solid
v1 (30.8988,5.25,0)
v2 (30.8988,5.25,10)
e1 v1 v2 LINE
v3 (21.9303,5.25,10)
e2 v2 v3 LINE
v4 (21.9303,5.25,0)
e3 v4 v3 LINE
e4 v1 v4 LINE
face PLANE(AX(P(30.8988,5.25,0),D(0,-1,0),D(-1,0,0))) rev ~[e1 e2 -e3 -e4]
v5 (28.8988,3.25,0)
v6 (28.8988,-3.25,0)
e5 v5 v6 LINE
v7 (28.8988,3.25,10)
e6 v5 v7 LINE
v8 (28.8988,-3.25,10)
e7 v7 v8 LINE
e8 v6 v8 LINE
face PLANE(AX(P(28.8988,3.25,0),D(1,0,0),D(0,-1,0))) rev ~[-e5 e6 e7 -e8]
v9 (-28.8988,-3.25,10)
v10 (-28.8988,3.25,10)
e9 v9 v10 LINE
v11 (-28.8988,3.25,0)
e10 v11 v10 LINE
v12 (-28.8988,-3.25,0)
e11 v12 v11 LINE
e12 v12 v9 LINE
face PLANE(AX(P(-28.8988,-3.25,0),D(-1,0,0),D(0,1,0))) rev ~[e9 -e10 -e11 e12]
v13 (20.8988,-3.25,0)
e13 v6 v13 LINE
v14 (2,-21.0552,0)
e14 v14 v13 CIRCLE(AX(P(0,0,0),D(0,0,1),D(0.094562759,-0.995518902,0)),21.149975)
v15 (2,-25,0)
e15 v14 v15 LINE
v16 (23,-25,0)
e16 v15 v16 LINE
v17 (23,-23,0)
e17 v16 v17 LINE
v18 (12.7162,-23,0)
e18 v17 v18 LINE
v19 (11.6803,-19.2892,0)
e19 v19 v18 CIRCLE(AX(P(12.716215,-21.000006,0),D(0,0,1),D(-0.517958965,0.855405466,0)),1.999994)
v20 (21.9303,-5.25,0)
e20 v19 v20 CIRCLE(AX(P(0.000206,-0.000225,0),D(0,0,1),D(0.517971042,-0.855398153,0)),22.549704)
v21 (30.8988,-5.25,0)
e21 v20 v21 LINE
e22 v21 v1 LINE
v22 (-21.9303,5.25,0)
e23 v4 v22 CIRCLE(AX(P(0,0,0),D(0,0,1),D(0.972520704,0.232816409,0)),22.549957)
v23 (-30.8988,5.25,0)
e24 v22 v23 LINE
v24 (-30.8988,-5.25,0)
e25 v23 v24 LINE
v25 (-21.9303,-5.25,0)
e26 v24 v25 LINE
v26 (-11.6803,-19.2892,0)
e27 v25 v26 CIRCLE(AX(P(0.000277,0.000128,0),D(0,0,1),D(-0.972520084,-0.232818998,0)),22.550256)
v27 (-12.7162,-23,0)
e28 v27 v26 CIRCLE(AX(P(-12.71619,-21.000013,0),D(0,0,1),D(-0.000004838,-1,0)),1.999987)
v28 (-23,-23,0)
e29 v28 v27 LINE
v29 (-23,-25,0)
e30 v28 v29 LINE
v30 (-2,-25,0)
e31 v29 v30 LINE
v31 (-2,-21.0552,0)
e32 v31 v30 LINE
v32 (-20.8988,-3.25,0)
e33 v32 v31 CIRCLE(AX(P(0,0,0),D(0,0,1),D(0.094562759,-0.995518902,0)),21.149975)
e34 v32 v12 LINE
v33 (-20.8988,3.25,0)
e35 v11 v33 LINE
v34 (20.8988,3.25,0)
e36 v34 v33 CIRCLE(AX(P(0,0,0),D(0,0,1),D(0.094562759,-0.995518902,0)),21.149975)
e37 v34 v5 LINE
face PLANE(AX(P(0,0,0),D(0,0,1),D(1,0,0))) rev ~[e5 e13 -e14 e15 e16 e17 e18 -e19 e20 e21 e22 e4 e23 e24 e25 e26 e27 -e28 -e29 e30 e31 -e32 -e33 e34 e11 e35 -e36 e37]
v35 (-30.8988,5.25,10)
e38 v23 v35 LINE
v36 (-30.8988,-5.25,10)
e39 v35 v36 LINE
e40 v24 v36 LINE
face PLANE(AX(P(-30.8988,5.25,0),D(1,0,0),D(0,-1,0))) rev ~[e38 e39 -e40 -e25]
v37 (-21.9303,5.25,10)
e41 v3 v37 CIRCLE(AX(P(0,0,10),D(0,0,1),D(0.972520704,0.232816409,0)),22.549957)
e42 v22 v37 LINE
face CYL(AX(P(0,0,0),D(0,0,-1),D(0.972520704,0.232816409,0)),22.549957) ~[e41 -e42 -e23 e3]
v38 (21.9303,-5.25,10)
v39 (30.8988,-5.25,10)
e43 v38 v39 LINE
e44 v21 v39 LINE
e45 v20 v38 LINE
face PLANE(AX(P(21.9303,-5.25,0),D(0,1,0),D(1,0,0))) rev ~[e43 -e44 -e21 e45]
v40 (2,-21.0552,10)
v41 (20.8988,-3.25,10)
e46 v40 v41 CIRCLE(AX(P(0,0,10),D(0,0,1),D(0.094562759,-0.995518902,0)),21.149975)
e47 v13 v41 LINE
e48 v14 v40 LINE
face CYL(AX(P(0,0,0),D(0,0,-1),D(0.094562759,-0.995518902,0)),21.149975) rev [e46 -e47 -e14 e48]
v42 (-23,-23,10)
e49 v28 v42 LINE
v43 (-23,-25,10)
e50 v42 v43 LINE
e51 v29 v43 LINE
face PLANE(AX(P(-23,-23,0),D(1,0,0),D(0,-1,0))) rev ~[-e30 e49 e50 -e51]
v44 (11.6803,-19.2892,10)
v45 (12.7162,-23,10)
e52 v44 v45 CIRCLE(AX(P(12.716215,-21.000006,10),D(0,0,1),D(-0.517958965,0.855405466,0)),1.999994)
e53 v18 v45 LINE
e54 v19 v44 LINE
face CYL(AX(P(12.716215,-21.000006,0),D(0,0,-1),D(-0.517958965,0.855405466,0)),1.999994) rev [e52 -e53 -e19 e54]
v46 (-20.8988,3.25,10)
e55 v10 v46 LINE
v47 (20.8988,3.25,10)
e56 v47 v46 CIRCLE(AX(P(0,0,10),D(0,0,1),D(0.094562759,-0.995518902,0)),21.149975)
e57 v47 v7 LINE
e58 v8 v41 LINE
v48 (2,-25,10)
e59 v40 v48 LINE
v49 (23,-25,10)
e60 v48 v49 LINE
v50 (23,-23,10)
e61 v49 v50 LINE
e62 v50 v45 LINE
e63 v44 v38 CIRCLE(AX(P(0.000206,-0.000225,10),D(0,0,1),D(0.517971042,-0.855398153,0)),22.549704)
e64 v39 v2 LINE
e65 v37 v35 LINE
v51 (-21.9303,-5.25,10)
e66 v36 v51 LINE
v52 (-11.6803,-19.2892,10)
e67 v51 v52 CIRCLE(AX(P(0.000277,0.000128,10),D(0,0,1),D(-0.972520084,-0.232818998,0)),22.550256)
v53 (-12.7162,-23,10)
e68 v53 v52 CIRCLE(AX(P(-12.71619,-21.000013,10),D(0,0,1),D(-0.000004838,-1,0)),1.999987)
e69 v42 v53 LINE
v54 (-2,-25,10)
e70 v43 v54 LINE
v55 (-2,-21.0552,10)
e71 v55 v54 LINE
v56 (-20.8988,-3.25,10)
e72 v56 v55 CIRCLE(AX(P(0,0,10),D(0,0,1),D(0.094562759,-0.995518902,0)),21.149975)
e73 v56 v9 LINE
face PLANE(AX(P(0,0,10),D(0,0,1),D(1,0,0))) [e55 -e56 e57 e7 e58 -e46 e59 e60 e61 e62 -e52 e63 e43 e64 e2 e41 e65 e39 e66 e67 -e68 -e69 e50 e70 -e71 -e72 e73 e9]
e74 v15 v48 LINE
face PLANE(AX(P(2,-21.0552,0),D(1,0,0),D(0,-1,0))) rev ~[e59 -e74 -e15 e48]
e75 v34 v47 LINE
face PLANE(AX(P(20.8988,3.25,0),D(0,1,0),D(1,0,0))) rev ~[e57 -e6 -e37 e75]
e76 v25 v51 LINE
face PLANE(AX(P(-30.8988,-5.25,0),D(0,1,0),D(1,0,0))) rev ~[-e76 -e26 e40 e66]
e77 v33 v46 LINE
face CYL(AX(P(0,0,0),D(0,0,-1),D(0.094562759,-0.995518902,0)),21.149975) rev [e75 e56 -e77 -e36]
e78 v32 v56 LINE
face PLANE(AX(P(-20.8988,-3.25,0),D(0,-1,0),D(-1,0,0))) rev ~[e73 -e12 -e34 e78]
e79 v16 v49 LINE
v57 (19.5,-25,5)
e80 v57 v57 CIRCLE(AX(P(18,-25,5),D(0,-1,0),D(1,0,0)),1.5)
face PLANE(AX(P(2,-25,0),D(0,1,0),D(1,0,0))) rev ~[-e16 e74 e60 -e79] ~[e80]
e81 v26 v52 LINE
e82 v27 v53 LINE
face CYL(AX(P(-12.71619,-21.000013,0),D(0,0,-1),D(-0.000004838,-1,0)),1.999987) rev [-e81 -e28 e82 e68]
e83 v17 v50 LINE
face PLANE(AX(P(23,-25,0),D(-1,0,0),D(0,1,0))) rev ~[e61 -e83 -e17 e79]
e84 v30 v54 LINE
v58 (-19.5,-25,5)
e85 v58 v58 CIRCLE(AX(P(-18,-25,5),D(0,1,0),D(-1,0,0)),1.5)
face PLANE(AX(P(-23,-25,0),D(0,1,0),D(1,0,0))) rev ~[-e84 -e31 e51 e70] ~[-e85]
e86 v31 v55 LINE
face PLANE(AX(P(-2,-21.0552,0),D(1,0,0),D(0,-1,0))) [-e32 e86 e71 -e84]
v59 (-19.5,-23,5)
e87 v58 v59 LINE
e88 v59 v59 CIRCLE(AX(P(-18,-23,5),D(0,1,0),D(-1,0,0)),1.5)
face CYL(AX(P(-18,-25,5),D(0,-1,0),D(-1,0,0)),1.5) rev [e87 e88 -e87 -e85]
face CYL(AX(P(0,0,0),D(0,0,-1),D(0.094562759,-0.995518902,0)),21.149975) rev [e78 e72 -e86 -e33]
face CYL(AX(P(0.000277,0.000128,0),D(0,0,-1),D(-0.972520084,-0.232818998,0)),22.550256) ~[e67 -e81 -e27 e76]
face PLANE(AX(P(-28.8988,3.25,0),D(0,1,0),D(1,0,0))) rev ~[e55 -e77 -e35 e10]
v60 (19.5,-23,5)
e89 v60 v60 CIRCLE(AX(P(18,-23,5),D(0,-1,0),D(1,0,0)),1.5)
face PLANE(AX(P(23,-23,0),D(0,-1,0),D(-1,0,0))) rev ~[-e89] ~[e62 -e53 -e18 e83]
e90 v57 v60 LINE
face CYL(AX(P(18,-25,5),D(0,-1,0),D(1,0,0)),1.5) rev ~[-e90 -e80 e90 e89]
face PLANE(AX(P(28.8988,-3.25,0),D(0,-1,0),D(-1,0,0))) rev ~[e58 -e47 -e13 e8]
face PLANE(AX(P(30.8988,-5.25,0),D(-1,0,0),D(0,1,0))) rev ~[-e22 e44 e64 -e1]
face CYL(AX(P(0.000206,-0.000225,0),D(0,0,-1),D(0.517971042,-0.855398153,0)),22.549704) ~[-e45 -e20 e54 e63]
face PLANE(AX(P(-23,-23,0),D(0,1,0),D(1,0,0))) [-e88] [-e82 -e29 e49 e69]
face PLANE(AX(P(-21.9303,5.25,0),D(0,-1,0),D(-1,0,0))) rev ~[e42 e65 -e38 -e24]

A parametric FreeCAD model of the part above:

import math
import FreeCAD as App
import Part
import Sketcher

doc = App.newDocument("Part")
params = doc.addObject("Spreadsheet::Sheet", "Params")
for row, (alias, value) in enumerate([
    ("sketch1_radius", "2 mm"),
    ("sketch1_width", "8 mm"),
    ("sketch1_height", "2 mm"),
    ("sketch1_radius2", "21.15 mm"),
    ("sketch1_radius3", "22.55 mm"),
    ("pad1_length", "10 mm"),
    ("sketch2_diameter", "3 mm"),
    ("pocket1_length", "2 mm"),
], start=1):
    params.set(f"A{row}", alias)
    params.set(f"B{row}", "=" + value)
    params.setAlias(f"B{row}", alias)

body = doc.addObject("PartDesign::Body", "Body")

# Sketch on XY plane
sketch1 = body.newObject("Sketcher::SketchObject", "Sketch")
sketch1.AttachmentSupport = (doc.getObject("XY_Plane"), [""])
sketch1.MapMode = "FlatFace"
sketch1.addGeometry(Part.LineSegment(App.Vector(-12.7, -23, 0), App.Vector(-23, -23, 0)), False)
sketch1.addGeometry(Part.LineSegment(App.Vector(-23, -23, 0), App.Vector(-23, -25, 0)), False)
sketch1.addGeometry(Part.LineSegment(App.Vector(-23, -25, 0), App.Vector(-2, -25, 0)), False)
sketch1.addGeometry(Part.LineSegment(App.Vector(-2, -25, 0), App.Vector(-2, -21.1, 0)), False)
sketch1.addGeometry(Part.ArcOfCircle(Part.Circle(App.Vector(0, 0, 0), App.Vector(0, 0, 1), 21.1), math.radians(-171), math.radians(-95)), False)
sketch1.addGeometry(Part.LineSegment(App.Vector(-20.9, -3.2, 0), App.Vector(-28.9, -3.2, 0)), False)
sketch1.addGeometry(Part.LineSegment(App.Vector(-28.9, -3.2, 0), App.Vector(-28.9, 3.2, 0)), False)
sketch1.addGeometry(Part.LineSegment(App.Vector(-28.9, 3.2, 0), App.Vector(-20.9, 3.2, 0)), False)
sketch1.addGeometry(Part.ArcOfCircle(Part.Circle(App.Vector(0, 0, 0), App.Vector(0, 0, 1), 21.1), math.radians(9), math.radians(171)), False)
sketch1.addGeometry(Part.LineSegment(App.Vector(20.9, 3.2, 0), App.Vector(28.9, 3.2, 0)), False)
sketch1.addGeometry(Part.LineSegment(App.Vector(28.9, 3.2, 0), App.Vector(28.9, -3.2, 0)), False)
sketch1.addGeometry(Part.LineSegment(App.Vector(28.9, -3.2, 0), App.Vector(20.9, -3.2, 0)), False)
sketch1.addGeometry(Part.ArcOfCircle(Part.Circle(App.Vector(0, 0, 0), App.Vector(0, 0, 1), 21.1), math.radians(-85), math.radians(-9)), False)
sketch1.addGeometry(Part.LineSegment(App.Vector(2, -21.1, 0), App.Vector(2, -25, 0)), False)
sketch1.addGeometry(Part.LineSegment(App.Vector(2, -25, 0), App.Vector(23, -25, 0)), False)
sketch1.addGeometry(Part.LineSegment(App.Vector(23, -25, 0), App.Vector(23, -23, 0)), False)
sketch1.addGeometry(Part.LineSegment(App.Vector(23, -23, 0), App.Vector(12.7, -23, 0)), False)
sketch1.addGeometry(Part.ArcOfCircle(Part.Circle(App.Vector(12.7, -21, 0), App.Vector(0, 0, 1), 2), math.radians(121), math.radians(270)), False)
sketch1.addGeometry(Part.ArcOfCircle(Part.Circle(App.Vector(0, 0, 0), App.Vector(0, 0, 1), 22.5), math.radians(-59), math.radians(-13)), False)
sketch1.addGeometry(Part.LineSegment(App.Vector(21.9, -5.2, 0), App.Vector(30.9, -5.2, 0)), False)
sketch1.addGeometry(Part.LineSegment(App.Vector(30.9, -5.2, 0), App.Vector(30.9, 5.2, 0)), False)
sketch1.addGeometry(Part.LineSegment(App.Vector(30.9, 5.2, 0), App.Vector(21.9, 5.2, 0)), False)
sketch1.addGeometry(Part.ArcOfCircle(Part.Circle(App.Vector(0, 0, 0), App.Vector(0, 0, 1), 22.5), math.radians(13), math.radians(167)), False)
sketch1.addGeometry(Part.LineSegment(App.Vector(-21.9, 5.2, 0), App.Vector(-30.9, 5.2, 0)), False)
sketch1.addGeometry(Part.LineSegment(App.Vector(-30.9, 5.2, 0), App.Vector(-30.9, -5.2, 0)), False)
sketch1.addGeometry(Part.LineSegment(App.Vector(-30.9, -5.2, 0), App.Vector(-21.9, -5.2, 0)), False)
sketch1.addGeometry(Part.ArcOfCircle(Part.Circle(App.Vector(0, 0, 0), App.Vector(0, 0, 1), 22.6), math.radians(-167), math.radians(-121)), False)
sketch1.addGeometry(Part.ArcOfCircle(Part.Circle(App.Vector(-12.7, -21, 0), App.Vector(0, 0, 1), 2), math.radians(-90), math.radians(59)), False)
sketch1.addConstraint(Sketcher.Constraint("Coincident", 0, 2, 1, 1))
sketch1.addConstraint(Sketcher.Constraint("Coincident", 1, 2, 2, 1))
sketch1.addConstraint(Sketcher.Constraint("Coincident", 2, 2, 3, 1))
sketch1.addConstraint(Sketcher.Constraint("Coincident", 3, 2, 4, 2))
sketch1.addConstraint(Sketcher.Constraint("Coincident", 4, 1, 5, 1))
sketch1.addConstraint(Sketcher.Constraint("Coincident", 5, 2, 6, 1))
sketch1.addConstraint(Sketcher.Constraint("Coincident", 6, 2, 7, 1))
sketch1.addConstraint(Sketcher.Constraint("Coincident", 7, 2, 8, 2))
sketch1.addConstraint(Sketcher.Constraint("Coincident", 8, 1, 9, 1))
sketch1.addConstraint(Sketcher.Constraint("Coincident", 9, 2, 10, 1))
sketch1.addConstraint(Sketcher.Constraint("Coincident", 10, 2, 11, 1))
sketch1.addConstraint(Sketcher.Constraint("Coincident", 11, 2, 12, 2))
sketch1.addConstraint(Sketcher.Constraint("Coincident", 12, 1, 13, 1))
sketch1.addConstraint(Sketcher.Constraint("Coincident", 13, 2, 14, 1))
sketch1.addConstraint(Sketcher.Constraint("Coincident", 14, 2, 15, 1))
sketch1.addConstraint(Sketcher.Constraint("Coincident", 15, 2, 16, 1))
sketch1.addConstraint(Sketcher.Constraint("Tangent", 16, 2, 17, 2))
sketch1.addConstraint(Sketcher.Constraint("Tangent", 17, 1, 18, 1))
sketch1.addConstraint(Sketcher.Constraint("Coincident", 18, 2, 19, 1))
sketch1.addConstraint(Sketcher.Constraint("Coincident", 19, 2, 20, 1))
sketch1.addConstraint(Sketcher.Constraint("Coincident", 20, 2, 21, 1))
sketch1.addConstraint(Sketcher.Constraint("Coincident", 21, 2, 22, 1))
sketch1.addConstraint(Sketcher.Constraint("Coincident", 22, 2, 23, 1))
sketch1.addConstraint(Sketcher.Constraint("Coincident", 23, 2, 24, 1))
sketch1.addConstraint(Sketcher.Constraint("Coincident", 24, 2, 25, 1))
sketch1.addConstraint(Sketcher.Constraint("Coincident", 25, 2, 26, 1))
sketch1.addConstraint(Sketcher.Constraint("Tangent", 26, 2, 27, 2))
sketch1.addConstraint(Sketcher.Constraint("Tangent", 27, 1, 0, 1))
sketch1.addConstraint(Sketcher.Constraint("Horizontal", 0))
sketch1.addConstraint(Sketcher.Constraint("Vertical", 1))
sketch1.addConstraint(Sketcher.Constraint("Horizontal", 2))
sketch1.addConstraint(Sketcher.Constraint("Vertical", 3))
sketch1.addConstraint(Sketcher.Constraint("Horizontal", 5))
sketch1.addConstraint(Sketcher.Constraint("Vertical", 6))
sketch1.addConstraint(Sketcher.Constraint("Horizontal", 7))
sketch1.addConstraint(Sketcher.Constraint("Horizontal", 9))
sketch1.addConstraint(Sketcher.Constraint("Vertical", 10))
sketch1.addConstraint(Sketcher.Constraint("Horizontal", 11))
sketch1.addConstraint(Sketcher.Constraint("Vertical", 13))
sketch1.addConstraint(Sketcher.Constraint("Horizontal", 14))
sketch1.addConstraint(Sketcher.Constraint("Vertical", 15))
sketch1.addConstraint(Sketcher.Constraint("Horizontal", 16))
sketch1.addConstraint(Sketcher.Constraint("Horizontal", 19))
sketch1.addConstraint(Sketcher.Constraint("Vertical", 20))
sketch1.addConstraint(Sketcher.Constraint("Horizontal", 21))
sketch1.addConstraint(Sketcher.Constraint("Horizontal", 23))
sketch1.addConstraint(Sketcher.Constraint("Vertical", 24))
sketch1.addConstraint(Sketcher.Constraint("Horizontal", 25))
sketch1.addConstraint(Sketcher.Constraint("Coincident", 4, 3, -1, 1))
sketch1.addConstraint(Sketcher.Constraint("Coincident", 8, 3, -1, 1))
sketch1.addConstraint(Sketcher.Constraint("Coincident", 12, 3, -1, 1))
sketch1.addConstraint(Sketcher.Constraint("Coincident", 18, 3, -1, 1))
sketch1.addConstraint(Sketcher.Constraint("Coincident", 22, 3, -1, 1))
sketch1.addConstraint(Sketcher.Constraint("Coincident", 26, 3, -1, 1))
sketch1.addConstraint(Sketcher.Constraint("Equal", 4, 8))
sketch1.addConstraint(Sketcher.Constraint("Equal", 8, 12))
sketch1.addConstraint(Sketcher.Constraint("Equal", 18, 22))
sketch1.addConstraint(Sketcher.Constraint("Equal", 22, 26))
sketch1.addConstraint(Sketcher.Constraint("Equal", 17, 27))
sketch1.addConstraint(Sketcher.Constraint("Symmetric", 5, 2, 9, 2, -1, 1))
sketch1.addConstraint(Sketcher.Constraint("Symmetric", 19, 2, 23, 2, -1, 1))
sketch1.addConstraint(Sketcher.Constraint("Symmetric", 2, 2, 13, 2, -2))
sketch1.addConstraint(Sketcher.Constraint("Symmetric", 0, 2, 15, 2, -2))
sketch1.addConstraint(Sketcher.Constraint("Horizontal", 7, 2, 8, 1))
sketch1.addConstraint(Sketcher.Constraint("Horizontal", 5, 2, 10, 2))
sketch1.addConstraint(Sketcher.Constraint("Horizontal", 21, 2, 22, 2))
sketch1.addConstraint(Sketcher.Constraint("Horizontal", 19, 2, 24, 2))
sketch1.addConstraint(Sketcher.Constraint("Radius", 17, 2.0))
sketch1.addConstraint(Sketcher.Constraint("DistanceX", 5, 2, 5, 1, 8.0))
sketch1.addConstraint(Sketcher.Constraint("DistanceY", 1, 2, 1, 1, 2.0))
sketch1.addConstraint(Sketcher.Constraint("Radius", 4, 21.15))
sketch1.addConstraint(Sketcher.Constraint("Radius", 18, 22.55))
sketch1.addConstraint(Sketcher.Constraint("DistanceY", 6, 1, 6, 2, 6.5))
sketch1.addConstraint(Sketcher.Constraint("DistanceY", 1, 2, -1, 1, 25.0))
sketch1.addConstraint(Sketcher.Constraint("DistanceX", 2, 2, -1, 1, 2.0))
sketch1.addConstraint(Sketcher.Constraint("DistanceY", 18, 2, 11, 2, 2.0))
sketch1.addConstraint(Sketcher.Constraint("DistanceX", 10, 2, 19, 2, 2.0))
sketch1.addConstraint(Sketcher.Constraint("DistanceX", 2, 1, 2, 2, 21.0))
sketch1.setExpression("Constraints[67]", "Params.sketch1_radius")
sketch1.setExpression("Constraints[68]", "Params.sketch1_width")
sketch1.setExpression("Constraints[69]", "Params.sketch1_height")
sketch1.setExpression("Constraints[70]", "Params.sketch1_radius2")
sketch1.setExpression("Constraints[71]", "Params.sketch1_radius3")
pad1 = body.newObject("PartDesign::Pad", "Pad")
pad1.Profile = sketch1
pad1.setExpression("Length", "Params.pad1_length")

# Sketch on XZ plane
sketch2 = body.newObject("Sketcher::SketchObject", "Sketch001")
sketch2.AttachmentSupport = (doc.getObject("XZ_Plane"), [""])
sketch2.MapMode = "FlatFace"
sketch2.AttachmentOffset = App.Placement(App.Vector(0, 0, 25), App.Rotation())
sketch2.addGeometry(Part.Circle(App.Vector(18, 5, 0), App.Vector(0, 0, 1), 1.5), False)
sketch2.addConstraint(Sketcher.Constraint("Diameter", 0, 3.0))
sketch2.addConstraint(Sketcher.Constraint("DistanceX", -1, 1, 0, 3, 18.0))
sketch2.addConstraint(Sketcher.Constraint("DistanceY", -1, 1, 0, 3, 5.0))
sketch2.setExpression("Constraints[0]", "Params.sketch2_diameter")
pocket1 = body.newObject("PartDesign::Pocket", "Pocket")
pocket1.Profile = sketch2
pocket1.setExpression("Length", "Params.pocket1_length")
doc.recompute()

mirrored = body.newObject("PartDesign::Mirrored", "Mirrored")
mirrored.Originals = [pocket1]
mirrored.MirrorPlane = (doc.getObject("YZ_Plane"), [""])
body.Tip = mirrored

doc.recompute()
